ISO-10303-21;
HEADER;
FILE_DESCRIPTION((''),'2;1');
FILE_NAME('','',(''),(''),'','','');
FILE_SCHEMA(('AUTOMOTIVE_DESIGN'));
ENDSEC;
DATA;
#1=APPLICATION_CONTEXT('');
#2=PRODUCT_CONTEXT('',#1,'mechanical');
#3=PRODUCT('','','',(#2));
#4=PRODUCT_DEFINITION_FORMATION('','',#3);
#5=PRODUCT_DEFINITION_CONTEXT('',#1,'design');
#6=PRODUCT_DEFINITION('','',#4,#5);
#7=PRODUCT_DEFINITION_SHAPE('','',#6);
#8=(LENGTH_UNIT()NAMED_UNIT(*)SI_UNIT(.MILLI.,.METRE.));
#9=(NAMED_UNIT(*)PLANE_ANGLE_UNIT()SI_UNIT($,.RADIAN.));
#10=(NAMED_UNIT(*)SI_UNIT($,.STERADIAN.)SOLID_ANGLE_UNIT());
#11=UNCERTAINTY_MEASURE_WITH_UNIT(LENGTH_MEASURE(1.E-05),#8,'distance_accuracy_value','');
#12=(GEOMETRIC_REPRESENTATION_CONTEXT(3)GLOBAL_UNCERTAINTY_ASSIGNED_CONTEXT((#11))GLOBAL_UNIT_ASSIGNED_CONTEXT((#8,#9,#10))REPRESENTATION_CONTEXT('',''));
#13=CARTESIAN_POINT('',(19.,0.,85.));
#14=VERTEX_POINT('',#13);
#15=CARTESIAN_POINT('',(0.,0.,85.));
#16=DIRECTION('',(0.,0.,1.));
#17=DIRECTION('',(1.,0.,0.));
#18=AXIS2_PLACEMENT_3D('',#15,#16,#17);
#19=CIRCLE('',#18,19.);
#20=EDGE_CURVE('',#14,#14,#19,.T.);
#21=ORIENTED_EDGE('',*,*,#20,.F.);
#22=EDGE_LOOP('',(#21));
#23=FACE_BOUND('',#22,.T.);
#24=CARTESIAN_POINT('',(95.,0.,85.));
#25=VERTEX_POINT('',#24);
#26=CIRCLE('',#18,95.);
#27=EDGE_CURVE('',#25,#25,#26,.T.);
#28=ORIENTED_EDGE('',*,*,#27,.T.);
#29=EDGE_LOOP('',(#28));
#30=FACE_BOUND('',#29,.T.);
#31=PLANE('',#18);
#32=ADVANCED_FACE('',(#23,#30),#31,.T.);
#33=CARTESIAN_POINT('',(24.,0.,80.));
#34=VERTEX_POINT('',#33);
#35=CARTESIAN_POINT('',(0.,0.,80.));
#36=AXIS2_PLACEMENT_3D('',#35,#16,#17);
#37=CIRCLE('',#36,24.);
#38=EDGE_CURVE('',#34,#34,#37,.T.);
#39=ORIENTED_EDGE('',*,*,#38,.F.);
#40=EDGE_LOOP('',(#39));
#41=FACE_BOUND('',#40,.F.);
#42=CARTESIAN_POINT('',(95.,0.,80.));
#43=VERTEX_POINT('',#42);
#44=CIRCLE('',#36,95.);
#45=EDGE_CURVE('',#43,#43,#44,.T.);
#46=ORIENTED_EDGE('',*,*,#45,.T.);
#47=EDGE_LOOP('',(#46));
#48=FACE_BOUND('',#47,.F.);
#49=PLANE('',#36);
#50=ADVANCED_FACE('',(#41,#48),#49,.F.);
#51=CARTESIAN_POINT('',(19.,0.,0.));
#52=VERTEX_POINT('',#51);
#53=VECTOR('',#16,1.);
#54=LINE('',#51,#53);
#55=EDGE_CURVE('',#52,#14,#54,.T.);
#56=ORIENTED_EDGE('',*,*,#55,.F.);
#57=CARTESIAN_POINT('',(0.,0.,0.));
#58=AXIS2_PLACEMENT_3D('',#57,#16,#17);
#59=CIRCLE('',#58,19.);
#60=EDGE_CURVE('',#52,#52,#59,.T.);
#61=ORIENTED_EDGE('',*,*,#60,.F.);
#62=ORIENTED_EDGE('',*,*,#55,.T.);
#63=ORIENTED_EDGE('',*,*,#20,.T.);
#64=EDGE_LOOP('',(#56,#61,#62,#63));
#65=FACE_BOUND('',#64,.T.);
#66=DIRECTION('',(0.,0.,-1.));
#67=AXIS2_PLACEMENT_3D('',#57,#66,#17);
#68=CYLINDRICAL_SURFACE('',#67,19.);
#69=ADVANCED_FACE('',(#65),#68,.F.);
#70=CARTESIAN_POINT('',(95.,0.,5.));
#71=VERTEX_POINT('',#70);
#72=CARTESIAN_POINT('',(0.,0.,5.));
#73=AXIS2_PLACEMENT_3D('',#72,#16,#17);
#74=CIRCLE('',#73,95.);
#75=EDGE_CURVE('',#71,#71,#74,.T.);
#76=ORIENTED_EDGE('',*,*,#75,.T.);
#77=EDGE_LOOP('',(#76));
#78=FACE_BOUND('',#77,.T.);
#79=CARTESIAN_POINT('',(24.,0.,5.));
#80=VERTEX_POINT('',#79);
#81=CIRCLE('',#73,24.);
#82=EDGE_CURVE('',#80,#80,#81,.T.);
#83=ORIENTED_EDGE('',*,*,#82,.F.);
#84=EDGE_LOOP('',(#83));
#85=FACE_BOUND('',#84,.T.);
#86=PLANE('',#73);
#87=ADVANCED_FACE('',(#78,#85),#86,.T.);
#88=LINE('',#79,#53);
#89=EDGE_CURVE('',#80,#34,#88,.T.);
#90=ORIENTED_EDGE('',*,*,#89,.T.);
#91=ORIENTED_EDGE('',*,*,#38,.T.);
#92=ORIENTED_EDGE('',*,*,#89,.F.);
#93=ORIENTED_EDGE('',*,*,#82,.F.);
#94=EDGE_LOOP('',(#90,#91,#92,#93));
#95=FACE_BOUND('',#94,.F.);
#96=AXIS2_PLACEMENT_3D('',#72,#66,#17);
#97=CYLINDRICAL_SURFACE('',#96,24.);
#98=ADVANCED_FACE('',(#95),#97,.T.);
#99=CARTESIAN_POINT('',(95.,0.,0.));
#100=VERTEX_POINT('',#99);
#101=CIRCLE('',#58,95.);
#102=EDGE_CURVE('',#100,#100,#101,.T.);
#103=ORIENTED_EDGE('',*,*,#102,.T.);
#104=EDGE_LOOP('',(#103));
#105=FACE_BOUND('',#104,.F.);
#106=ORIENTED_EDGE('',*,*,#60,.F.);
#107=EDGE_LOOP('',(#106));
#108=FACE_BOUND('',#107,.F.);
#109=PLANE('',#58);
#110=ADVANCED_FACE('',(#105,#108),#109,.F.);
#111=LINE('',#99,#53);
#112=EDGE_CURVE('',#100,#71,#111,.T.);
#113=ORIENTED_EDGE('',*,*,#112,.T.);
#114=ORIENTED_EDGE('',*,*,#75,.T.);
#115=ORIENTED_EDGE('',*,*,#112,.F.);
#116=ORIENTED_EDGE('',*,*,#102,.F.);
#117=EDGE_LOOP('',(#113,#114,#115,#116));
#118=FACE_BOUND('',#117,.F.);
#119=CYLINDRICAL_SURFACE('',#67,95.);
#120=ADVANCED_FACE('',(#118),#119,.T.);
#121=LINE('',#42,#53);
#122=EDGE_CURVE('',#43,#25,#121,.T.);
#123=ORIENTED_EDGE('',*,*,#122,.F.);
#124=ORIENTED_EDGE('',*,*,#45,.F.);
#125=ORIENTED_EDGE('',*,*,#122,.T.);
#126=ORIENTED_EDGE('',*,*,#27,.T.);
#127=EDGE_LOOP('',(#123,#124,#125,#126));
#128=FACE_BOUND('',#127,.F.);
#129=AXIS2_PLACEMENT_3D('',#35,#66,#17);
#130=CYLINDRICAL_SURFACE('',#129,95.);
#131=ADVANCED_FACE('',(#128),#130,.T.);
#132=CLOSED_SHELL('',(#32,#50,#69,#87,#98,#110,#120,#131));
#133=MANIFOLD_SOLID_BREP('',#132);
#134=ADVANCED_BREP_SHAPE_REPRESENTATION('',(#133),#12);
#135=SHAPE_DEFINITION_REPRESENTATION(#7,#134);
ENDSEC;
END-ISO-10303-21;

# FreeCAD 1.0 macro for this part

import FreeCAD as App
import Part
import Sketcher

V = App.Vector

doc = App.newDocument("Part")
body = doc.addObject("PartDesign::Body", "Body")

sketch1 = body.newObject("Sketcher::SketchObject", "Sketch")
sketch1.AttachmentSupport = (doc.getObject("XY_Plane"), [""])
sketch1.MapMode = "FlatFace"
sketch1.addGeometry(Part.Circle(V(0, 0, 0), V(0, 0, 1), 95), False)
sketch1.addGeometry(Part.Circle(V(0, 0, 0), V(0, 0, 1), 19), False)
sketch1.addConstraint(Sketcher.Constraint("Coincident", 0, 3, -1, 1))
sketch1.addConstraint(Sketcher.Constraint("Coincident", 1, 3, -1, 1))
sketch1.addConstraint(Sketcher.Constraint("Diameter", 0, 190.0))
sketch1.addConstraint(Sketcher.Constraint("Diameter", 1, 38.0))
pad1 = body.newObject("PartDesign::Pad", "Pad")
pad1.Profile = sketch1
pad1.Length = 5

sketch2 = body.newObject("Sketcher::SketchObject", "Sketch001")
sketch2.AttachmentSupport = (doc.getObject("XY_Plane"), [""])
sketch2.MapMode = "FlatFace"
sketch2.AttachmentOffset = App.Placement(V(0, 0, 5), App.Rotation())
sketch2.addGeometry(Part.Circle(V(0, 0, 0), V(0, 0, 1), 24), False)
sketch2.addGeometry(Part.Circle(V(0, 0, 0), V(0, 0, 1), 19), False)
sketch2.addConstraint(Sketcher.Constraint("Coincident", 0, 3, -1, 1))
sketch2.addConstraint(Sketcher.Constraint("Coincident", 1, 3, -1, 1))
sketch2.addConstraint(Sketcher.Constraint("Diameter", 0, 48.0))
sketch2.addConstraint(Sketcher.Constraint("Diameter", 1, 38.0))
pad2 = body.newObject("PartDesign::Pad", "Pad001")
pad2.Profile = sketch2
pad2.Length = 75

sketch3 = body.newObject("Sketcher::SketchObject", "Sketch002")
sketch3.AttachmentSupport = (doc.getObject("XY_Plane"), [""])
sketch3.MapMode = "FlatFace"
sketch3.AttachmentOffset = App.Placement(V(0, 0, 80), App.Rotation())
sketch3.addGeometry(Part.Circle(V(0, 0, 0), V(0, 0, 1), 95), False)
sketch3.addGeometry(Part.Circle(V(0, 0, 0), V(0, 0, 1), 19), False)
sketch3.addConstraint(Sketcher.Constraint("Coincident", 0, 3, -1, 1))
sketch3.addConstraint(Sketcher.Constraint("Coincident", 1, 3, -1, 1))
sketch3.addConstraint(Sketcher.Constraint("Diameter", 0, 190.0))
sketch3.addConstraint(Sketcher.Constraint("Diameter", 1, 38.0))
pad3 = body.newObject("PartDesign::Pad", "Pad002")
pad3.Profile = sketch3
pad3.Length = 5

doc.recompute()
